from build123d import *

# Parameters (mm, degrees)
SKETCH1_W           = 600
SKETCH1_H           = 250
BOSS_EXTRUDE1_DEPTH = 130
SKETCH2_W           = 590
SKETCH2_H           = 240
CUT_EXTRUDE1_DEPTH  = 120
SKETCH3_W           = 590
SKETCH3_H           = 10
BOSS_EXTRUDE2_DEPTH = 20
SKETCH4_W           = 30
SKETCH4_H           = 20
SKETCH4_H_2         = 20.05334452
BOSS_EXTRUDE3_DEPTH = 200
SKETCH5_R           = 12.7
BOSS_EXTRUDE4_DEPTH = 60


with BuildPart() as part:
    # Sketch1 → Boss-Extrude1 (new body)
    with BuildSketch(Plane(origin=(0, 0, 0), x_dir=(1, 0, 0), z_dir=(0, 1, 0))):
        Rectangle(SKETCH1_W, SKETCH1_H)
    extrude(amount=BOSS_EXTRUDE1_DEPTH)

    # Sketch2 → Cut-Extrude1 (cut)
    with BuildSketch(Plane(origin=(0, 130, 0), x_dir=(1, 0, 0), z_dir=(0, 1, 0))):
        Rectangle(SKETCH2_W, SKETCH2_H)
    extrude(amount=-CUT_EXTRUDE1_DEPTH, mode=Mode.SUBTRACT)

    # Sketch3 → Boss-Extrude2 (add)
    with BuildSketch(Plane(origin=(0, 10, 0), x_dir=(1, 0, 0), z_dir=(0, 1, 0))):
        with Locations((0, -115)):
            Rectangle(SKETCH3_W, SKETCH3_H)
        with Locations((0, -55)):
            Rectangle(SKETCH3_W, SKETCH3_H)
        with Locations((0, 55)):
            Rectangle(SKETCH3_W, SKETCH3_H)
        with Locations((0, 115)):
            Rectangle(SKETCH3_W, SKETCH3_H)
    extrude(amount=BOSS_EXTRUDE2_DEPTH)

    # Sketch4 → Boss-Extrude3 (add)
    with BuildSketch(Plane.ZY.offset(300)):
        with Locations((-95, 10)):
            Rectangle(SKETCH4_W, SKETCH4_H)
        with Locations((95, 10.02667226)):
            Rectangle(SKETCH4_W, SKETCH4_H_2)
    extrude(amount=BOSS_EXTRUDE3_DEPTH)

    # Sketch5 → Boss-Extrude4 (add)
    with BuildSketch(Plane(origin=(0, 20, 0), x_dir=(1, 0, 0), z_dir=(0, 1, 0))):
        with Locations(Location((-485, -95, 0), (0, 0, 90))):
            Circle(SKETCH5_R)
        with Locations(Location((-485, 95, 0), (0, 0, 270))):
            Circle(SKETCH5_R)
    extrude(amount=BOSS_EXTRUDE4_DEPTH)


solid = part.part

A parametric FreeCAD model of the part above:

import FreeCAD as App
import Part
import Sketcher
Q = App.Units.Quantity

doc = App.newDocument("Part")
body = doc.addObject("PartDesign::Body", "Body")

# Sketch on XZ plane
sketch1 = body.newObject("Sketcher::SketchObject", "Sketch")
sketch1.AttachmentSupport = (doc.getObject("XZ_Plane"), [""])
sketch1.MapMode = "FlatFace"
sketch1.addGeometry([
    Part.LineSegment(App.Vector(-300, -125, 0), App.Vector(-300, 125, 0)),
    Part.LineSegment(App.Vector(-300, 125, 0), App.Vector(300, 125, 0)),
    Part.LineSegment(App.Vector(300, 125, 0), App.Vector(300, -125, 0)),
    Part.LineSegment(App.Vector(300, -125, 0), App.Vector(-300, -125, 0)),
], False)
sketch1.addConstraint([
    Sketcher.Constraint("Coincident", 0, 2, 1, 1),
    Sketcher.Constraint("Coincident", 1, 2, 2, 1),
    Sketcher.Constraint("Coincident", 2, 2, 3, 1),
    Sketcher.Constraint("Coincident", 3, 2, 0, 1),
    Sketcher.Constraint("Vertical", 0),
    Sketcher.Constraint("Horizontal", 1),
    Sketcher.Constraint("Vertical", 2),
    Sketcher.Constraint("Horizontal", 3),
    Sketcher.Constraint("Symmetric", 0, 2, 2, 2, -1, 1),
    Sketcher.Constraint("DistanceX", 1, 1, 1, 2, Q("600 mm")),
    Sketcher.Constraint("DistanceY", 0, 1, 0, 2, Q("250 mm")),
])
pad1 = body.newObject("PartDesign::Pad", "Pad")
pad1.Profile = sketch1
pad1.Length = 130
pad1.Reversed = True

# Sketch on XZ plane
sketch2 = body.newObject("Sketcher::SketchObject", "Sketch001")
sketch2.AttachmentSupport = (doc.getObject("XZ_Plane"), [""])
sketch2.MapMode = "FlatFace"
sketch2.AttachmentOffset = App.Placement(App.Vector(0, 0, -130), App.Rotation())
sketch2.addGeometry([
    Part.LineSegment(App.Vector(-295, -120, 0), App.Vector(-295, 120, 0)),
    Part.LineSegment(App.Vector(-295, 120, 0), App.Vector(295, 120, 0)),
    Part.LineSegment(App.Vector(295, 120, 0), App.Vector(295, -120, 0)),
    Part.LineSegment(App.Vector(295, -120, 0), App.Vector(-295, -120, 0)),
], False)
sketch2.addConstraint([
    Sketcher.Constraint("Coincident", 0, 2, 1, 1),
    Sketcher.Constraint("Coincident", 1, 2, 2, 1),
    Sketcher.Constraint("Coincident", 2, 2, 3, 1),
    Sketcher.Constraint("Coincident", 3, 2, 0, 1),
    Sketcher.Constraint("Vertical", 0),
    Sketcher.Constraint("Horizontal", 1),
    Sketcher.Constraint("Vertical", 2),
    Sketcher.Constraint("Horizontal", 3),
    Sketcher.Constraint("Symmetric", 0, 2, 2, 2, -1, 1),
    Sketcher.Constraint("DistanceX", 1, 1, 1, 2, Q("590 mm")),
    Sketcher.Constraint("DistanceY", 0, 1, 0, 2, Q("240 mm")),
])
pocket1 = body.newObject("PartDesign::Pocket", "Pocket")
pocket1.Profile = sketch2
pocket1.Length = 120
pocket1.Reversed = True

# Sketch on XZ plane
sketch3 = body.newObject("Sketcher::SketchObject", "Sketch002")
sketch3.AttachmentSupport = (doc.getObject("XZ_Plane"), [""])
sketch3.MapMode = "FlatFace"
sketch3.AttachmentOffset = App.Placement(App.Vector(0, 0, -10), App.Rotation())
sketch3.addGeometry([
    Part.LineSegment(App.Vector(-295, 110, 0), App.Vector(-295, 120, 0)),  # 0
    Part.LineSegment(App.Vector(-295, 120, 0), App.Vector(295, 120, 0)),  # 1
    Part.LineSegment(App.Vector(295, 120, 0), App.Vector(295, 110, 0)),  # 2
    Part.LineSegment(App.Vector(295, 110, 0), App.Vector(-295, 110, 0)),  # 3
    Part.LineSegment(App.Vector(-295, 50, 0), App.Vector(-295, 60, 0)),  # 4
    Part.LineSegment(App.Vector(-295, 60, 0), App.Vector(295, 60, 0)),  # 5
    Part.LineSegment(App.Vector(295, 60, 0), App.Vector(295, 50, 0)),  # 6
    Part.LineSegment(App.Vector(295, 50, 0), App.Vector(-295, 50, 0)),  # 7
    Part.LineSegment(App.Vector(-295, -60, 0), App.Vector(-295, -50, 0)),  # 8
    Part.LineSegment(App.Vector(-295, -50, 0), App.Vector(295, -50, 0)),  # 9
    Part.LineSegment(App.Vector(295, -50, 0), App.Vector(295, -60, 0)),  # 10
    Part.LineSegment(App.Vector(295, -60, 0), App.Vector(-295, -60, 0)),  # 11
    Part.LineSegment(App.Vector(-295, -120, 0), App.Vector(-295, -110, 0)),  # 12
    Part.LineSegment(App.Vector(-295, -110, 0), App.Vector(295, -110, 0)),  # 13
    Part.LineSegment(App.Vector(295, -110, 0), App.Vector(295, -120, 0)),  # 14
    Part.LineSegment(App.Vector(295, -120, 0), App.Vector(-295, -120, 0)),  # 15
], False)
sketch3.addConstraint([
    Sketcher.Constraint("Coincident", 0, 2, 1, 1),
    Sketcher.Constraint("Coincident", 1, 2, 2, 1),
    Sketcher.Constraint("Coincident", 2, 2, 3, 1),
    Sketcher.Constraint("Coincident", 3, 2, 0, 1),
    Sketcher.Constraint("Coincident", 4, 2, 5, 1),
    Sketcher.Constraint("Coincident", 5, 2, 6, 1),
    Sketcher.Constraint("Coincident", 6, 2, 7, 1),
    Sketcher.Constraint("Coincident", 7, 2, 4, 1),
    Sketcher.Constraint("Coincident", 8, 2, 9, 1),
    Sketcher.Constraint("Coincident", 9, 2, 10, 1),
    Sketcher.Constraint("Coincident", 10, 2, 11, 1),
    Sketcher.Constraint("Coincident", 11, 2, 8, 1),
    Sketcher.Constraint("Coincident", 12, 2, 13, 1),
    Sketcher.Constraint("Coincident", 13, 2, 14, 1),
    Sketcher.Constraint("Coincident", 14, 2, 15, 1),
    Sketcher.Constraint("Coincident", 15, 2, 12, 1),
    Sketcher.Constraint("Vertical", 0),
    Sketcher.Constraint("Horizontal", 1),
    Sketcher.Constraint("Vertical", 2),
    Sketcher.Constraint("Horizontal", 3),
    Sketcher.Constraint("Vertical", 4),
    Sketcher.Constraint("Horizontal", 5),
    Sketcher.Constraint("Vertical", 6),
    Sketcher.Constraint("Horizontal", 7),
    Sketcher.Constraint("Vertical", 8),
    Sketcher.Constraint("Horizontal", 9),
    Sketcher.Constraint("Vertical", 10),
    Sketcher.Constraint("Horizontal", 11),
    Sketcher.Constraint("Vertical", 12),
    Sketcher.Constraint("Horizontal", 13),
    Sketcher.Constraint("Vertical", 14),
    Sketcher.Constraint("Horizontal", 15),
    Sketcher.Constraint("Symmetric", 6, 2, 8, 2, -1, 1),
    Sketcher.Constraint("Symmetric", 4, 2, 10, 2, -1, 1),
    Sketcher.Constraint("Symmetric", 2, 2, 12, 2, -1, 1),
    Sketcher.Constraint("Symmetric", 0, 2, 14, 2, -1, 1),
    Sketcher.Constraint("Vertical", 3, 2, 4, 2),
    Sketcher.Constraint("Vertical", 2, 2, 5, 2),
    Sketcher.Constraint("Vertical", 7, 2, 8, 2),
    Sketcher.Constraint("Equal", 2, 4),
    Sketcher.Constraint("DistanceX", 1, 1, 1, 2, Q("590 mm")),
    Sketcher.Constraint("DistanceY", 0, 1, 0, 2, Q("10 mm")),
    Sketcher.Constraint("DistanceY", -1, 1, 0, 2, Q("120 mm")),
    Sketcher.Constraint("DistanceY", -1, 1, 4, 2, Q("60 mm")),
])
pad2 = body.newObject("PartDesign::Pad", "Pad001")
pad2.Profile = sketch3
pad2.Length = 20
pad2.Reversed = True

# Sketch on YZ plane
sketch4 = body.newObject("Sketcher::SketchObject", "Sketch003")
sketch4.AttachmentSupport = (doc.getObject("YZ_Plane"), [""])
sketch4.MapMode = "FlatFace"
sketch4.AttachmentOffset = App.Placement(App.Vector(0, 0, -300), App.Rotation())
sketch4.addGeometry([
    Part.LineSegment(App.Vector(20, -110, 0), App.Vector(0, -110, 0)),  # 0
    Part.LineSegment(App.Vector(0, -110, 0), App.Vector(0, -80, 0)),  # 1
    Part.LineSegment(App.Vector(0, -80, 0), App.Vector(20, -80, 0)),  # 2
    Part.LineSegment(App.Vector(20, -80, 0), App.Vector(20, -110, 0)),  # 3
    Part.LineSegment(App.Vector(20, 80, 0), App.Vector(0, 80, 0)),  # 4
    Part.LineSegment(App.Vector(0, 80, 0), App.Vector(0, 110, 0)),  # 5
    Part.LineSegment(App.Vector(0, 110, 0), App.Vector(20, 110, 0)),  # 6
    Part.LineSegment(App.Vector(20, 110, 0), App.Vector(20, 80, 0)),  # 7
], False)
sketch4.addConstraint([
    Sketcher.Constraint("Coincident", 0, 2, 1, 1),
    Sketcher.Constraint("Coincident", 1, 2, 2, 1),
    Sketcher.Constraint("Coincident", 2, 2, 3, 1),
    Sketcher.Constraint("Coincident", 3, 2, 0, 1),
    Sketcher.Constraint("Coincident", 4, 2, 5, 1),
    Sketcher.Constraint("Coincident", 5, 2, 6, 1),
    Sketcher.Constraint("Coincident", 6, 2, 7, 1),
    Sketcher.Constraint("Coincident", 7, 2, 4, 1),
    Sketcher.Constraint("Horizontal", 0),
    Sketcher.Constraint("Vertical", 1),
    Sketcher.Constraint("Horizontal", 2),
    Sketcher.Constraint("Vertical", 3),
    Sketcher.Constraint("Horizontal", 4),
    Sketcher.Constraint("Vertical", 5),
    Sketcher.Constraint("Horizontal", 6),
    Sketcher.Constraint("Vertical", 7),
    Sketcher.Constraint("Symmetric", 1, 2, 4, 2, -1, 1),
    Sketcher.Constraint("Symmetric", 0, 2, 5, 2, -1),
    Sketcher.Constraint("DistanceX", 0, 2, 0, 1, Q("20 mm")),
    Sketcher.Constraint("DistanceY", 1, 1, 1, 2, Q("30 mm")),
    Sketcher.Constraint("DistanceY", 0, 2, -1, 1, Q("110 mm")),
    Sketcher.Constraint("DistanceX", 4, 2, 4, 1, Q("20.053345 mm")),
])
pad3 = body.newObject("PartDesign::Pad", "Pad002")
pad3.Profile = sketch4
pad3.Length = 200
pad3.Reversed = True

# Sketch on XZ plane
sketch5 = body.newObject("Sketcher::SketchObject", "Sketch004")
sketch5.AttachmentSupport = (doc.getObject("XZ_Plane"), [""])
sketch5.MapMode = "FlatFace"
sketch5.AttachmentOffset = App.Placement(App.Vector(0, 0, -20), App.Rotation())
sketch5.addGeometry([
    Part.Circle(App.Vector(-485, 95, 0), App.Vector(0, 0, 1), 13),
    Part.Circle(App.Vector(-485, -95, 0), App.Vector(0, 0, 1), 13),
], False)
sketch5.addConstraint([
    Sketcher.Constraint("Equal", 0, 1),
    Sketcher.Constraint("Symmetric", 0, 3, 1, 3, -1),
    Sketcher.Constraint("Diameter", 0, Q("25.4 mm")),
    Sketcher.Constraint("DistanceX", 0, 3, -1, 1, Q("485 mm")),
    Sketcher.Constraint("DistanceY", -1, 1, 0, 3, Q("95 mm")),
])
pad4 = body.newObject("PartDesign::Pad", "Pad003")
pad4.Profile = sketch5
pad4.Length = 60
pad4.Reversed = True

doc.recompute()
